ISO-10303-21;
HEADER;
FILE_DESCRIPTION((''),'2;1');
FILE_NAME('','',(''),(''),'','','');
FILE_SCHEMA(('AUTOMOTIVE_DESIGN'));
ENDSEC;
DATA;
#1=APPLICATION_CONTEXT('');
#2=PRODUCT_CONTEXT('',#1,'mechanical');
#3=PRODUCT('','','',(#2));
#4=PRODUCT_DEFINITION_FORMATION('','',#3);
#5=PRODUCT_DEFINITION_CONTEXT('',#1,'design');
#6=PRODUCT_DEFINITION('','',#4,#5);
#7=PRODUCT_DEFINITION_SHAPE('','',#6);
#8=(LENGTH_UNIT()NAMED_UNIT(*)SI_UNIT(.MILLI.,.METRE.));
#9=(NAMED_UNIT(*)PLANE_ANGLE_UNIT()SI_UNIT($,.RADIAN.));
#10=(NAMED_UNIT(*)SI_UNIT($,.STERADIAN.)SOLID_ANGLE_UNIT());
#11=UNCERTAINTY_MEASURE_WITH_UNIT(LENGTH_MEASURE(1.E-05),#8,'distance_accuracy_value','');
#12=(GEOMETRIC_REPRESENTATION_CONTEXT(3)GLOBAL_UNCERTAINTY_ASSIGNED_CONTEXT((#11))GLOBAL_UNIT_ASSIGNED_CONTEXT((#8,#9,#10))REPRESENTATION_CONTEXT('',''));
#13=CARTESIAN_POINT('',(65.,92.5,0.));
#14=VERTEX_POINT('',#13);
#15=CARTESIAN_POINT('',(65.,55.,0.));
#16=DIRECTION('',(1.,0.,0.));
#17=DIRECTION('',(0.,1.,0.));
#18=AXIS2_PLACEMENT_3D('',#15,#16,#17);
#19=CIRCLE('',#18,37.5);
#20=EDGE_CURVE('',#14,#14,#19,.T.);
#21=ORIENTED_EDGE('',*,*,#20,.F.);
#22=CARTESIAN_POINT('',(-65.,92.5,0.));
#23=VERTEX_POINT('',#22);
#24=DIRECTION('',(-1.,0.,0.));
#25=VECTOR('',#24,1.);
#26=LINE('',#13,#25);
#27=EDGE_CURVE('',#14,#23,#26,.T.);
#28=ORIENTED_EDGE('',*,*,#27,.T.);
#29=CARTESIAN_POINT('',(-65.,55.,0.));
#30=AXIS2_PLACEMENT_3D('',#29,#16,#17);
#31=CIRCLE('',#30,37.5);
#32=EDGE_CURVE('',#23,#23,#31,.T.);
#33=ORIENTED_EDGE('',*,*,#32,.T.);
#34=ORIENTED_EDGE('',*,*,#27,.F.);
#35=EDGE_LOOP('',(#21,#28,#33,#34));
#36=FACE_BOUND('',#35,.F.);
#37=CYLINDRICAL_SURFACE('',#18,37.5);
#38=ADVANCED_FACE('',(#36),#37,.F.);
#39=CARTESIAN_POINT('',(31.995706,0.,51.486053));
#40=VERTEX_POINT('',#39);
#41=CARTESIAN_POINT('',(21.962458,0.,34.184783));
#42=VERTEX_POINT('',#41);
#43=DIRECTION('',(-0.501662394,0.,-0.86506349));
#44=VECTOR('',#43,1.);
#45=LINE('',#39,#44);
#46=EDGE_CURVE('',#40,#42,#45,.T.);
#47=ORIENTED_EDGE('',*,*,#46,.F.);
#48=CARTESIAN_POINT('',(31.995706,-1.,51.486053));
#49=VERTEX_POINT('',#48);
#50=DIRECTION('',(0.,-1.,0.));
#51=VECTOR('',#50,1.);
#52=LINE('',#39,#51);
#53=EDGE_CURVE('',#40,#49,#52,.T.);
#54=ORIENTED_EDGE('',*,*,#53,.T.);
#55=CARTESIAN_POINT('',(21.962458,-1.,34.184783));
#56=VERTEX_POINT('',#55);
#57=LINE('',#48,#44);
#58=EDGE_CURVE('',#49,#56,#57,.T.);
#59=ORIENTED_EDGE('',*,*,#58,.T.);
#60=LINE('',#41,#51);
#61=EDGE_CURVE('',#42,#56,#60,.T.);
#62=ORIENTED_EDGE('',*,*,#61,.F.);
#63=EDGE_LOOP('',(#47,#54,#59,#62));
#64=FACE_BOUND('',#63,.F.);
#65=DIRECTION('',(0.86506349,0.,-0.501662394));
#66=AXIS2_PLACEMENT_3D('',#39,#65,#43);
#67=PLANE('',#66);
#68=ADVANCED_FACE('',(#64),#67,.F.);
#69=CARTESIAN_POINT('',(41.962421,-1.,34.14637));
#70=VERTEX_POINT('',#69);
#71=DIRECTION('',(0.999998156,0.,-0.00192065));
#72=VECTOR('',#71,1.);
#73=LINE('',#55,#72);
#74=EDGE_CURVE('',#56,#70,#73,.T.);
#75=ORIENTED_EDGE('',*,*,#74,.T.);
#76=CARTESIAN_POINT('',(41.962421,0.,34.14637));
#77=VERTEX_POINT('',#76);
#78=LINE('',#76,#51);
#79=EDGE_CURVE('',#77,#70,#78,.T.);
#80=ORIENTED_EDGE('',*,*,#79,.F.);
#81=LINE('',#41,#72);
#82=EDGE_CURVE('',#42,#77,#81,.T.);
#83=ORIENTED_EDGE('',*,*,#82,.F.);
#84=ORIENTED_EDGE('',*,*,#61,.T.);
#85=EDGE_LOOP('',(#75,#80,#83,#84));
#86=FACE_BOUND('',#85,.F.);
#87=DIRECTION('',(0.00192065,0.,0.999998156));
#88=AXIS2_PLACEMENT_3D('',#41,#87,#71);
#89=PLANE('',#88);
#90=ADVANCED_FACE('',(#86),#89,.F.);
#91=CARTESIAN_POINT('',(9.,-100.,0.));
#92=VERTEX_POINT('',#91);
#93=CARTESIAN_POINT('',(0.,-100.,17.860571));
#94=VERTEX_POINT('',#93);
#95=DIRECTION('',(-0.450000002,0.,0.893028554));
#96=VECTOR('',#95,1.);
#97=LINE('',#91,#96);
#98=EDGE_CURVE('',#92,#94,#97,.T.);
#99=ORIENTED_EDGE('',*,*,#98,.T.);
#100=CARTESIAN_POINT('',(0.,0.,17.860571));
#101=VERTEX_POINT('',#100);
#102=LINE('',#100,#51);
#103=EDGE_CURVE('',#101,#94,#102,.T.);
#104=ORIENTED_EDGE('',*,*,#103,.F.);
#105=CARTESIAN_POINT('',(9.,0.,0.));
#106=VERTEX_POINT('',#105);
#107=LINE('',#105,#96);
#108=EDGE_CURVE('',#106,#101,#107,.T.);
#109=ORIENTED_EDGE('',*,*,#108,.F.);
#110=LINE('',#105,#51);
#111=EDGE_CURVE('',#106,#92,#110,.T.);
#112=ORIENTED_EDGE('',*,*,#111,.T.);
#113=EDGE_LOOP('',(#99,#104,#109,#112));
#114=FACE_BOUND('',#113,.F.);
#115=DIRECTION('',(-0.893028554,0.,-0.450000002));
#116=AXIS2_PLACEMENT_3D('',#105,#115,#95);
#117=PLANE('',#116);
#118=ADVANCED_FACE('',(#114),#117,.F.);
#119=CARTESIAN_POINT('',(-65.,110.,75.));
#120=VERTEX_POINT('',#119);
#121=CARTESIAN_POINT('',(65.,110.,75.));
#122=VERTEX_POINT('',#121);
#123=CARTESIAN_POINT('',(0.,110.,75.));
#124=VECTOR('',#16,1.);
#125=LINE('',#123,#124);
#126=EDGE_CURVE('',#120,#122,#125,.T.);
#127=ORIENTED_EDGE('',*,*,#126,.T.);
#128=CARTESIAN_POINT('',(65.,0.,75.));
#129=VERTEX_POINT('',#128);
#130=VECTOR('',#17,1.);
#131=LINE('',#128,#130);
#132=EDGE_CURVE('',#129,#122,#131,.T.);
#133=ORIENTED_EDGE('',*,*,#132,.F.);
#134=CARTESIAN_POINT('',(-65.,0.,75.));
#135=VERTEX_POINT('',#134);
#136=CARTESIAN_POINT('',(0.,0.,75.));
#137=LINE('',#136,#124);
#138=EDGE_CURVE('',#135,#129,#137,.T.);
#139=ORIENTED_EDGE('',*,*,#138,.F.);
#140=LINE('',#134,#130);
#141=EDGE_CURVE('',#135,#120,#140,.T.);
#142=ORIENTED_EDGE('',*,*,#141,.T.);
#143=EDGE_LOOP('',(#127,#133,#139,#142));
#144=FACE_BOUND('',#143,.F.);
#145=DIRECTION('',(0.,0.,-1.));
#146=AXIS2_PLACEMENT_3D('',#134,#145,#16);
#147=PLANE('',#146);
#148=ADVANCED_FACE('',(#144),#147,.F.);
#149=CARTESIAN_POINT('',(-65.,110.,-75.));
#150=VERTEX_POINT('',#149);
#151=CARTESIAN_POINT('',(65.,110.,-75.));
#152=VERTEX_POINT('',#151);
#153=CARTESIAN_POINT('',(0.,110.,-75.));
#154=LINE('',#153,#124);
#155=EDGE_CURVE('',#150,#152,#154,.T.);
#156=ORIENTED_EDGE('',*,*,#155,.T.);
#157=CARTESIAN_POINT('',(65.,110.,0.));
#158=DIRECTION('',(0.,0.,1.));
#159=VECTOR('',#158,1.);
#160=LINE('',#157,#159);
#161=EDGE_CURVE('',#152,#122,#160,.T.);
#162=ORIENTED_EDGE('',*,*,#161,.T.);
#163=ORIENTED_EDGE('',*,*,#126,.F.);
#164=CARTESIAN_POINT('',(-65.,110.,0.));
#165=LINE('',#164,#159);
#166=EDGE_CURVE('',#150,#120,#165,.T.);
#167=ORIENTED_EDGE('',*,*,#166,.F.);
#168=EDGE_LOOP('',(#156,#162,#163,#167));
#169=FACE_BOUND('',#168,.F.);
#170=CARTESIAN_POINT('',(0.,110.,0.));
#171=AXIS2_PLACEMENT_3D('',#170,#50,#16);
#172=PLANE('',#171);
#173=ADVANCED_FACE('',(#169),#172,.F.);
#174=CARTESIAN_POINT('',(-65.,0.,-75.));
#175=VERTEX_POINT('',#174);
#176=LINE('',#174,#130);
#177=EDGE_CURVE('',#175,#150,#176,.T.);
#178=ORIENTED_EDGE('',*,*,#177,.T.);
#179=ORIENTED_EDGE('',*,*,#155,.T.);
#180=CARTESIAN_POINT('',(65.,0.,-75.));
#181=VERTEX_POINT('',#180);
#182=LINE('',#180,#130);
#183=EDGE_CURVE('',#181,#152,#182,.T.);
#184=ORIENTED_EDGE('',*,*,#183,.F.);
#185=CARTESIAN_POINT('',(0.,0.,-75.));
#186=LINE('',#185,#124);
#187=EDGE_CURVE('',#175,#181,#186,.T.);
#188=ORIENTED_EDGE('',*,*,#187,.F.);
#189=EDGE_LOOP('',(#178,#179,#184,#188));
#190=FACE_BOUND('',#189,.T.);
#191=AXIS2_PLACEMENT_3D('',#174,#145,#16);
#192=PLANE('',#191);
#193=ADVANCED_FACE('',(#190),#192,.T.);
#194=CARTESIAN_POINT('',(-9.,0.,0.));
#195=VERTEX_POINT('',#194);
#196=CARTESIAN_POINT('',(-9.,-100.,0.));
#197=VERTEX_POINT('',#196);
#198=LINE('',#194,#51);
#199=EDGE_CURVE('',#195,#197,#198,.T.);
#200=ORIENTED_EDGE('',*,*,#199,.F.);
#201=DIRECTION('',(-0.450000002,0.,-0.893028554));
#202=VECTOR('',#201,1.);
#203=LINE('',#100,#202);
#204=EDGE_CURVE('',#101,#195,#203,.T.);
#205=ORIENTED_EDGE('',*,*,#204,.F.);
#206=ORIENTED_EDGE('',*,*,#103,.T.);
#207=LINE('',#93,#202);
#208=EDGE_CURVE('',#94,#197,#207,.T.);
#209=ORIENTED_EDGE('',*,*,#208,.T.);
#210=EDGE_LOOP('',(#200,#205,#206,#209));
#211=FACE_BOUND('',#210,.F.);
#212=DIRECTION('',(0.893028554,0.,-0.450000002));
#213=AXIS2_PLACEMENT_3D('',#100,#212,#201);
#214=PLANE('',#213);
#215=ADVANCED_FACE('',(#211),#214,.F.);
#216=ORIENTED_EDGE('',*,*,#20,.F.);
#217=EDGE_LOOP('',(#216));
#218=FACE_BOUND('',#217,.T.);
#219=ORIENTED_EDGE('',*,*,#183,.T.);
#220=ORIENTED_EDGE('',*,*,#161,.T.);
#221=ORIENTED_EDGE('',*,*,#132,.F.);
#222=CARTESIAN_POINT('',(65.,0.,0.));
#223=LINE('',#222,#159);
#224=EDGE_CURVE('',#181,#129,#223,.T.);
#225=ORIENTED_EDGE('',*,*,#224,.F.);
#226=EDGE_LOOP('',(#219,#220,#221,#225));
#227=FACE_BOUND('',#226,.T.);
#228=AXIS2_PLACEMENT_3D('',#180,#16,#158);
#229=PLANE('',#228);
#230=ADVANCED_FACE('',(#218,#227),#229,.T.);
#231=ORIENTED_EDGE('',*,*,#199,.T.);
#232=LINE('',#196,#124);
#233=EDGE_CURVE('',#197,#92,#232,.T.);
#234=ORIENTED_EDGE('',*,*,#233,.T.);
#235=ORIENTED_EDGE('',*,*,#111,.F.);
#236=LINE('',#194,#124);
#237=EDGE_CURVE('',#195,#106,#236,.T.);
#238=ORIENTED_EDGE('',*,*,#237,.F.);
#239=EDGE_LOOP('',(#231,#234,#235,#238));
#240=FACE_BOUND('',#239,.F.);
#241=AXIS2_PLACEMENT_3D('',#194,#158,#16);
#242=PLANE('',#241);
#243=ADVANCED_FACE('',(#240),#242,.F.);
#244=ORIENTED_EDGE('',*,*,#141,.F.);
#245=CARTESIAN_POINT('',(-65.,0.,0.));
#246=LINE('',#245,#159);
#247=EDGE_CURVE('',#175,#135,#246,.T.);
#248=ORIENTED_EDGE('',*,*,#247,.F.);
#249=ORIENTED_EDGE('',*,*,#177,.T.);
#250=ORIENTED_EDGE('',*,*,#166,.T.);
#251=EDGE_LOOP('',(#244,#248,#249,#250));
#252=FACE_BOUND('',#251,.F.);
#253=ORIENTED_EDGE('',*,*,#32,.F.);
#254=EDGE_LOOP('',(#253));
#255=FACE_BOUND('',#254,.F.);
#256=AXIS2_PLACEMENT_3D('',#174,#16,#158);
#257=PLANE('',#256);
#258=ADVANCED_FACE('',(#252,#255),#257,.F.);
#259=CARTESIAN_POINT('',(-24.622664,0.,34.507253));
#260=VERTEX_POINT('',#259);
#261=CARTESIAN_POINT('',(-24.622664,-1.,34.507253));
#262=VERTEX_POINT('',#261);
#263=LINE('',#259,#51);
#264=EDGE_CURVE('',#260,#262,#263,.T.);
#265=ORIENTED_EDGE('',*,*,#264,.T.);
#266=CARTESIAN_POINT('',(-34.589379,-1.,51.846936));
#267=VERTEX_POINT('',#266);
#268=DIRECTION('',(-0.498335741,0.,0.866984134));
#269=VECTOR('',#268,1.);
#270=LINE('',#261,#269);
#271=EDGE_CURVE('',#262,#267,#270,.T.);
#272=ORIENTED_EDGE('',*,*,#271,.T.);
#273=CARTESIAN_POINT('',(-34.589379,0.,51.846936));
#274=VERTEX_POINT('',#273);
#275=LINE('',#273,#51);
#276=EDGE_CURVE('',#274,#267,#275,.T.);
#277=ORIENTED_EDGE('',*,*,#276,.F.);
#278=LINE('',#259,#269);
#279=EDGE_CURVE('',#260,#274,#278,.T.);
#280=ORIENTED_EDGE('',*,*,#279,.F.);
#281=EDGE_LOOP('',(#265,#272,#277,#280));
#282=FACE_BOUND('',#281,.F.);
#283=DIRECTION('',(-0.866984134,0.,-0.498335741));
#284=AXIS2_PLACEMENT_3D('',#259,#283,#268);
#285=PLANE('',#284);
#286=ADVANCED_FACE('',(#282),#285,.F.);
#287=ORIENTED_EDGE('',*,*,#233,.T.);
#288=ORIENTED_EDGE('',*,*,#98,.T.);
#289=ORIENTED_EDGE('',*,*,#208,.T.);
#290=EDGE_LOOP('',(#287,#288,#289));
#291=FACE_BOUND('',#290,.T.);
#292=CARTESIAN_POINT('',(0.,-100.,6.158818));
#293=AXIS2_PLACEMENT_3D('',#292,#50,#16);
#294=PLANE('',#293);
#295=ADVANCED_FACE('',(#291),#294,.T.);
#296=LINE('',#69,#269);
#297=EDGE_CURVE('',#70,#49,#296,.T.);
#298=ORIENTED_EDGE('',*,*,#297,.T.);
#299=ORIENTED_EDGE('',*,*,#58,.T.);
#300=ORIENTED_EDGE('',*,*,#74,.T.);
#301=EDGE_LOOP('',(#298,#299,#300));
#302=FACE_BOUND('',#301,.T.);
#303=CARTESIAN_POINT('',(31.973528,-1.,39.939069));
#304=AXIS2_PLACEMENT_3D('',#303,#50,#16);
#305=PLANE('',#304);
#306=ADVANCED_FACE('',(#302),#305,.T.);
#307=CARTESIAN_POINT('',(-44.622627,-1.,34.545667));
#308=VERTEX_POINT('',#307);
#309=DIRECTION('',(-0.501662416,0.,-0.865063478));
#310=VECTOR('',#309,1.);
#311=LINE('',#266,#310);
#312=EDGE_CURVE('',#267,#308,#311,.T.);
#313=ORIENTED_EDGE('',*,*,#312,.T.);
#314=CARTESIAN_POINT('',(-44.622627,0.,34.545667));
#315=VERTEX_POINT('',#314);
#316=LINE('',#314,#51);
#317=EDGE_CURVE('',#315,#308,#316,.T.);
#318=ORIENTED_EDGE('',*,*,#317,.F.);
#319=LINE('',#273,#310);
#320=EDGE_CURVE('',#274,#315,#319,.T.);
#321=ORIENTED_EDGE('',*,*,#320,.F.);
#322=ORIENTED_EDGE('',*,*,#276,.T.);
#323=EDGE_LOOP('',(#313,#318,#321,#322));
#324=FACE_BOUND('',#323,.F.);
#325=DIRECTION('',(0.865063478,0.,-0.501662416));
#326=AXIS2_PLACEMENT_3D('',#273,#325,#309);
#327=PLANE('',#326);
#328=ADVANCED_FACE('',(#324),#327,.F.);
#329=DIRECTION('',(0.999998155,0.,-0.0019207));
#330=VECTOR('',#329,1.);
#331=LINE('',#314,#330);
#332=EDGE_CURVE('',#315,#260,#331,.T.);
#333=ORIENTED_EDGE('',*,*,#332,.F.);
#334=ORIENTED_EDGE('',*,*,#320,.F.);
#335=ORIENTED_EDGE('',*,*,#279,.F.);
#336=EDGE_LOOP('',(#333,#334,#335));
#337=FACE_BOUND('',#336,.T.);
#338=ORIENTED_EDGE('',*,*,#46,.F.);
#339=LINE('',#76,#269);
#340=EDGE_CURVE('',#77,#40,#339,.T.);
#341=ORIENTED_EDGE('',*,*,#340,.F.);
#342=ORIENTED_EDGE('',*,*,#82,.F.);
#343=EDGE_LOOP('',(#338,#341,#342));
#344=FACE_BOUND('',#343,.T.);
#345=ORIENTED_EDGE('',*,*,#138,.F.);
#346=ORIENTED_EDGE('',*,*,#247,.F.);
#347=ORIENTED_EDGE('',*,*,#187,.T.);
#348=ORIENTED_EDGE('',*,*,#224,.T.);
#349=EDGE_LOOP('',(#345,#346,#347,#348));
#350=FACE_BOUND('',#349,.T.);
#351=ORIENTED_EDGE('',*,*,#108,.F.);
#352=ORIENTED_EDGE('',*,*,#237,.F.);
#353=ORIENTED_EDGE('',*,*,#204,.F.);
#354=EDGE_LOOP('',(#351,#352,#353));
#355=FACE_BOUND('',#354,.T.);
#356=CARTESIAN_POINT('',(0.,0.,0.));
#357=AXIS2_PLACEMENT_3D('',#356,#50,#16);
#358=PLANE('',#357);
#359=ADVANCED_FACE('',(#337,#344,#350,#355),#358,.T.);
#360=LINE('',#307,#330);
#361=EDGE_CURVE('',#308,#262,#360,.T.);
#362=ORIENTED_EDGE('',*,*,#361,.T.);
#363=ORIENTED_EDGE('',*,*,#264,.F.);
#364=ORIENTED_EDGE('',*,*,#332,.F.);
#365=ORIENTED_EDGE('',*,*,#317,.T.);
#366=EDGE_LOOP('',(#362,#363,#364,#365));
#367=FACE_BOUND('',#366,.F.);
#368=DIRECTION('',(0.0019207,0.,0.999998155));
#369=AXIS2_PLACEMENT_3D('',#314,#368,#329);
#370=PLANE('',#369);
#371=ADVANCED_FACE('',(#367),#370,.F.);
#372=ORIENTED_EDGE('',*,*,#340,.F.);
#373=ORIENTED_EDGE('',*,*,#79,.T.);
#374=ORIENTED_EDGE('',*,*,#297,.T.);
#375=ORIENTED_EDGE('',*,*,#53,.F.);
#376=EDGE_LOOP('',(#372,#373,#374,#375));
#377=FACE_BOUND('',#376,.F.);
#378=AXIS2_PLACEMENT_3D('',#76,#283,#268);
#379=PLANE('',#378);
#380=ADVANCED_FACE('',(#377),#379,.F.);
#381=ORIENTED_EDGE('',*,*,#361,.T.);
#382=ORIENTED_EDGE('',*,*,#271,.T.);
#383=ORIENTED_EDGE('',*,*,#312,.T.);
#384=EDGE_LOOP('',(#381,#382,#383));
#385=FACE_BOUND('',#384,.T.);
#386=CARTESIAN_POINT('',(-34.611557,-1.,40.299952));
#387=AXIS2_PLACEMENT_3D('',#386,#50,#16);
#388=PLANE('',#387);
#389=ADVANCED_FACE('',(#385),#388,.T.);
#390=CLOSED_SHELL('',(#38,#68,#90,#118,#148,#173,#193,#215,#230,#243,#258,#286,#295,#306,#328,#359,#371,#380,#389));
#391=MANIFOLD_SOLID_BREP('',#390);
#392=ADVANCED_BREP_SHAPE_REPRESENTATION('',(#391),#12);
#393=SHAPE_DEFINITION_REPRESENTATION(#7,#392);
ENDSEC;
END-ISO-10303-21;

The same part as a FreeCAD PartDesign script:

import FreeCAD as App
import Part
import Sketcher
from FreeCAD import Vector
Q = App.Units.Quantity

doc = App.newDocument("Part")
body = doc.addObject("PartDesign::Body", "Body")

# Sketch on XZ plane
sketch1 = body.newObject("Sketcher::SketchObject", "Sketch")
sketch1.AttachmentSupport = (doc.getObject("XZ_Plane"), [""])
sketch1.MapMode = "FlatFace"
sketch1.addGeometry(Part.LineSegment(Vector(-65, 75, 0), Vector(-65, -75, 0)), False)
sketch1.addGeometry(Part.LineSegment(Vector(-65, -75, 0), Vector(65, -75, 0)), False)
sketch1.addGeometry(Part.LineSegment(Vector(65, -75, 0), Vector(65, 75, 0)), False)
sketch1.addGeometry(Part.LineSegment(Vector(65, 75, 0), Vector(-65, 75, 0)), False)
sketch1.addConstraint(Sketcher.Constraint("Coincident", 0, 2, 1, 1))
sketch1.addConstraint(Sketcher.Constraint("Coincident", 1, 2, 2, 1))
sketch1.addConstraint(Sketcher.Constraint("Coincident", 2, 2, 3, 1))
sketch1.addConstraint(Sketcher.Constraint("Coincident", 3, 2, 0, 1))
sketch1.addConstraint(Sketcher.Constraint("Vertical", 0))
sketch1.addConstraint(Sketcher.Constraint("Horizontal", 1))
sketch1.addConstraint(Sketcher.Constraint("Vertical", 2))
sketch1.addConstraint(Sketcher.Constraint("Horizontal", 3))
sketch1.addConstraint(Sketcher.Constraint("Symmetric", 0, 2, 2, 2, -1, 1))
sketch1.addConstraint(Sketcher.Constraint("DistanceX", 1, 1, 1, 2, Q("130 mm")))
sketch1.addConstraint(Sketcher.Constraint("DistanceY", 0, 2, 0, 1, Q("150 mm")))
pad1 = body.newObject("PartDesign::Pad", "Pad")
pad1.Profile = sketch1
pad1.Length = 110
pad1.Reversed = True

# Sketch on YZ plane
sketch2 = body.newObject("Sketcher::SketchObject", "Sketch001")
sketch2.AttachmentSupport = (doc.getObject("YZ_Plane"), [""])
sketch2.MapMode = "FlatFace"
sketch2.AttachmentOffset = App.Placement(Vector(0, 0, 65), App.Rotation())
sketch2.addGeometry(Part.Circle(Vector(55, 0, 0), Vector(0, 0, 1), 38), False)
sketch2.addConstraint(Sketcher.Constraint("PointOnObject", 0, 3, -1))
sketch2.addConstraint(Sketcher.Constraint("Diameter", 0, Q("75 mm")))
sketch2.addConstraint(Sketcher.Constraint("DistanceX", -1, 1, 0, 3, Q("55 mm")))
pocket1 = body.newObject("PartDesign::Pocket", "Pocket")
pocket1.Profile = sketch2
pocket1.Length = 130

# Sketch on XZ plane
sketch3 = body.newObject("Sketcher::SketchObject", "Sketch002")
sketch3.AttachmentSupport = (doc.getObject("XZ_Plane"), [""])
sketch3.MapMode = "FlatFace"
sketch3.addGeometry(Part.LineSegment(Vector(-9, 0, 0), Vector(9, 0, 0)), False)
sketch3.addGeometry(Part.LineSegment(Vector(9, 0, 0), Vector(0, 18, 0)), False)
sketch3.addGeometry(Part.LineSegment(Vector(0, 18, 0), Vector(-9, 0, 0)), False)
sketch3.addConstraint(Sketcher.Constraint("Coincident", 0, 2, 1, 1))
sketch3.addConstraint(Sketcher.Constraint("Coincident", 1, 2, 2, 1))
sketch3.addConstraint(Sketcher.Constraint("Coincident", 2, 2, 0, 1))
sketch3.addConstraint(Sketcher.Constraint("Horizontal", 0))
sketch3.addConstraint(Sketcher.Constraint("Symmetric", 0, 2, 2, 2, -1, 1))
sketch3.addConstraint(Sketcher.Constraint("PointOnObject", 1, 2, -2))
sketch3.addConstraint(Sketcher.Constraint("DistanceX", 0, 1, 0, 2, Q("18 mm")))
sketch3.addConstraint(Sketcher.Constraint("Distance", 1, Q("20 mm")))
pad2 = body.newObject("PartDesign::Pad", "Pad001")
pad2.Profile = sketch3
pad2.Length = 100

# Sketch on XZ plane
sketch4 = body.newObject("Sketcher::SketchObject", "Sketch003")
sketch4.AttachmentSupport = (doc.getObject("XZ_Plane"), [""])
sketch4.MapMode = "FlatFace"
sketch4.addGeometry(Part.LineSegment(Vector(-45, 35, 0), Vector(-25, 35, 0)), False)
sketch4.addGeometry(Part.LineSegment(Vector(-25, 35, 0), Vector(-35, 52, 0)), False)
sketch4.addGeometry(Part.LineSegment(Vector(-35, 52, 0), Vector(-45, 35, 0)), False)
sketch4.addGeometry(Part.LineSegment(Vector(22, 34, 0), Vector(42, 34, 0)), False)
sketch4.addGeometry(Part.LineSegment(Vector(42, 34, 0), Vector(32, 51, 0)), False)
sketch4.addGeometry(Part.LineSegment(Vector(32, 51, 0), Vector(22, 34, 0)), False)
sketch4.addConstraint(Sketcher.Constraint("Coincident", 0, 2, 1, 1))
sketch4.addConstraint(Sketcher.Constraint("Coincident", 1, 2, 2, 1))
sketch4.addConstraint(Sketcher.Constraint("Coincident", 2, 2, 0, 1))
sketch4.addConstraint(Sketcher.Constraint("Coincident", 3, 2, 4, 1))
sketch4.addConstraint(Sketcher.Constraint("Coincident", 4, 2, 5, 1))
sketch4.addConstraint(Sketcher.Constraint("Coincident", 5, 2, 3, 1))
sketch4.addConstraint(Sketcher.Constraint("Parallel", 0, 3))
sketch4.addConstraint(Sketcher.Constraint("Parallel", 1, 4))
sketch4.addConstraint(Sketcher.Constraint("Parallel", 2, 5))
sketch4.addConstraint(Sketcher.Constraint("Equal", 0, 1))
sketch4.addConstraint(Sketcher.Constraint("Equal", 1, 2))
sketch4.addConstraint(Sketcher.Constraint("Equal", 2, 3))
sketch4.addConstraint(Sketcher.Constraint("Distance", 0, Q("20 mm")))
sketch4.addConstraint(Sketcher.Constraint("DistanceX", 1, 2, 3, 2, Q("76.5518 mm")))
sketch4.addConstraint(Sketcher.Constraint("DistanceY", 0, 2, 4, 2, Q("16.9788 mm")))
sketch4.addConstraint(Sketcher.Constraint("DistanceX", 1, 2, -1, 1, Q("34.589379 mm")))
sketch4.addConstraint(Sketcher.Constraint("DistanceY", -1, 1, 3, 2, Q("34.14637 mm")))
sketch4.addConstraint(Sketcher.Constraint("DistanceY", 2, 2, 1, 2, Q("17.301269 mm")))
pad3 = body.newObject("PartDesign::Pad", "Pad002")
pad3.Profile = sketch4
pad3.Length = 1

doc.recompute()
